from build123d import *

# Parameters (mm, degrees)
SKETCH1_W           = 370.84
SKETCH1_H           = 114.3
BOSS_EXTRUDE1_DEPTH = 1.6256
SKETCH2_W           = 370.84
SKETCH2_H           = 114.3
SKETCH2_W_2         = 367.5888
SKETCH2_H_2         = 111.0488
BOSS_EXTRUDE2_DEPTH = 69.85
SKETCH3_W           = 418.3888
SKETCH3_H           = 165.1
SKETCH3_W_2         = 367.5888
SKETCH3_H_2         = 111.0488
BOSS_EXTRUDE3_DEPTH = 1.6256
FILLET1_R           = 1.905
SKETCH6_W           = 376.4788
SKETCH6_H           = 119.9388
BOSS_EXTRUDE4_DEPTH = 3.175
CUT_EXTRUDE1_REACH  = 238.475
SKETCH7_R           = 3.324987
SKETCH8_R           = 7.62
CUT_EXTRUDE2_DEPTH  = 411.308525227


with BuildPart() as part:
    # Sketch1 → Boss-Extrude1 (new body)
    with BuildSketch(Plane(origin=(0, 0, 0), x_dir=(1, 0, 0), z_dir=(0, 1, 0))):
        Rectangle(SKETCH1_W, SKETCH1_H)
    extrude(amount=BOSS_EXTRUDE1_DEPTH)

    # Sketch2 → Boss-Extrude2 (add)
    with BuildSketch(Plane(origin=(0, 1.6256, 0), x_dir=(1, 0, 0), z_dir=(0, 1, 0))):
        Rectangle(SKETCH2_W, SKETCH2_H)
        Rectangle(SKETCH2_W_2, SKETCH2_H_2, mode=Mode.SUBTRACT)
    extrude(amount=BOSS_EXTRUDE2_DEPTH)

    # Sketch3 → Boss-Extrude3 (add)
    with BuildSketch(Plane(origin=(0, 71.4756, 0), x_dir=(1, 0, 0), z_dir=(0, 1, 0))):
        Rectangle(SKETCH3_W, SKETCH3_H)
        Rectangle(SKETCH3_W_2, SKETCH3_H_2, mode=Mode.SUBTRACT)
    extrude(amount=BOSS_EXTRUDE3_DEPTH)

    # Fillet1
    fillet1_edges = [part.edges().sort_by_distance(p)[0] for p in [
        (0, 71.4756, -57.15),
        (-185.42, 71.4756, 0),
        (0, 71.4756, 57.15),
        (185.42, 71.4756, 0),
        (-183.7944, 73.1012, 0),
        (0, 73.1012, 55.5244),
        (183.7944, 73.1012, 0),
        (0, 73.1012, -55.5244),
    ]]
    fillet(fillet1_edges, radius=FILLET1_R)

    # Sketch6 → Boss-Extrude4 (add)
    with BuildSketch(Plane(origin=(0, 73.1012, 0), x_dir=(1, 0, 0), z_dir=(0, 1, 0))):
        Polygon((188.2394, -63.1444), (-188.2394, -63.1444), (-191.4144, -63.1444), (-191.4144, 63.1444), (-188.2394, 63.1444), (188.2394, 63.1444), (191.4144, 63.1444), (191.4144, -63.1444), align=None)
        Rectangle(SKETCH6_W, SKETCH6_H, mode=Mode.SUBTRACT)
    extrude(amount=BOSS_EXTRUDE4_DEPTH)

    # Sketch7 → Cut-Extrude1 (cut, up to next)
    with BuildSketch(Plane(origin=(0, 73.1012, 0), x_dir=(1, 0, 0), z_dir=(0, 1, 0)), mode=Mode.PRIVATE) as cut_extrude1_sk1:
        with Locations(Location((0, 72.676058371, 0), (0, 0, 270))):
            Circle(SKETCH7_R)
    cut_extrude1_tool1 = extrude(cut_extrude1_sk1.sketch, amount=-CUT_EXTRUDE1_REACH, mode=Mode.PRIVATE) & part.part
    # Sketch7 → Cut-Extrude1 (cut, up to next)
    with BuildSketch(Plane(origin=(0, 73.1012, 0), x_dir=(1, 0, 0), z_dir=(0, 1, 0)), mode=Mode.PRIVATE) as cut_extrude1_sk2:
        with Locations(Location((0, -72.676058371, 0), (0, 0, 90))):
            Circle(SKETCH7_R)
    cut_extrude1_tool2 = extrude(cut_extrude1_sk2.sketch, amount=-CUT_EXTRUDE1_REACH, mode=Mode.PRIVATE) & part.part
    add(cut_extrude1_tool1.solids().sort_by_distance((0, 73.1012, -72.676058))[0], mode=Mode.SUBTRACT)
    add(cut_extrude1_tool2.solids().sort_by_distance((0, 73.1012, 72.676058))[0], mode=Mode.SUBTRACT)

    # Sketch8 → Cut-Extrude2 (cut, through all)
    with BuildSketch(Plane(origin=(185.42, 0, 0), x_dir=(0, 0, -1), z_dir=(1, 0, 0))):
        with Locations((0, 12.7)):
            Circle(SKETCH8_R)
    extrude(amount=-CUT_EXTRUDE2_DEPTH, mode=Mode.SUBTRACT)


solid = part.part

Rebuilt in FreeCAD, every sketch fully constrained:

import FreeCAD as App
import Part
import Sketcher
from FreeCAD import Vector
Q = App.Units.Quantity


def edges_at(feature, points):
    """Names of the edges that pass closest to the given points."""
    edges = feature.Shape.Edges
    near = lambda p: min(range(len(edges)), key=lambda i: edges[i].distToShape(Part.Vertex(*p))[0])
    return sorted({f"Edge{near(p) + 1}" for p in points})


def add_polygon(sketch, points):
    """Adds a closed chain of lines whose ends are joined by coincident constraints."""
    first, n = sketch.GeometryCount, len(points)
    for a, b in zip(points, points[1:] + points[:1]):
        sketch.addGeometry(Part.LineSegment(App.Vector(*a, 0), App.Vector(*b, 0)), False)
    for i in range(n):
        sketch.addConstraint(Sketcher.Constraint("Coincident", first + i, 2, first + (i + 1) % n, 1))

doc = App.newDocument("Part")
params = doc.addObject("Spreadsheet::Sheet", "Params")
for row, (alias, value) in enumerate([
    ("sketch1_width", "14.6 in"),
    ("sketch1_height", "4.5 in"),
    ("pad1_length", "0.064 in"),
    ("sketch2_width", "14.6 in"),
    ("sketch2_height", "4.5 in"),
    ("sketch2_width2", "14.472 in"),
    ("sketch2_height2", "4.372 in"),
    ("pad2_length", "2.75 in"),
    ("sketch3_height", "6.5 in"),
    ("sketch3_width", "16.472 in"),
    ("sketch3_height2", "4.372 in"),
    ("pad3_length", "0.064 in"),
    ("fillet_radius", "0.075 in"),
    ("sketch4_width", "15.072 in"),
    ("sketch4_width2", "14.822 in"),
    ("sketch4_height", "4.972 in"),
    ("sketch4_height2", "4.722 in"),
    ("pad4_length", "0.125 in"),
    ("sketch7_diameter", "0.6 in"),
], start=1):
    params.set(f"A{row}", alias)
    params.set(f"B{row}", "=" + value)
    params.setAlias(f"B{row}", alias)

body = doc.addObject("PartDesign::Body", "Body")

sketch1 = doc.addObject("Sketcher::SketchObject", "Sketch")
body.addObject(sketch1)
sketch1.AttachmentSupport = (doc.XZ_Plane, [""])
sketch1.MapMode = "FlatFace"
add_polygon(sketch1, [(-185, -57), (-185, 57), (185, 57), (185, -57)])
sketch1.addConstraint([
    Sketcher.Constraint("Vertical", 0),
    Sketcher.Constraint("Horizontal", 1),
    Sketcher.Constraint("Vertical", 2),
    Sketcher.Constraint("Horizontal", 3),
    Sketcher.Constraint("Symmetric", 0, 2, 2, 2, -1, 1),
    Sketcher.Constraint("DistanceX", 1, 1, 1, 2, Q("14.6 in")),
    Sketcher.Constraint("DistanceY", 0, 1, 0, 2, Q("4.5 in")),
])
sketch1.setExpression("Constraints[9]", "Params.sketch1_width")
sketch1.setExpression("Constraints[10]", "Params.sketch1_height")
pad1 = doc.addObject("PartDesign::Pad", "Pad")
body.addObject(pad1)
pad1.Profile = sketch1
pad1.setExpression("Length", "Params.pad1_length")
pad1.Reversed = True

sketch2 = doc.addObject("Sketcher::SketchObject", "Sketch001")
body.addObject(sketch2)
sketch2.AttachmentSupport = (doc.XZ_Plane, [""])
sketch2.MapMode = "FlatFace"
sketch2.AttachmentOffset = App.Placement(Vector(0, 0, -0.064 * 25.4), App.Rotation())
add_polygon(sketch2, [(-185, -57), (-185, 57), (185, 57), (185, -57)])
add_polygon(sketch2, [(184, 56), (-184, 56), (-184, -56), (184, -56)])
sketch2.addConstraint([
    Sketcher.Constraint("Vertical", 0),
    Sketcher.Constraint("Horizontal", 1),
    Sketcher.Constraint("Vertical", 2),
    Sketcher.Constraint("Horizontal", 3),
    Sketcher.Constraint("Horizontal", 4),
    Sketcher.Constraint("Vertical", 5),
    Sketcher.Constraint("Horizontal", 6),
    Sketcher.Constraint("Vertical", 7),
    Sketcher.Constraint("Symmetric", 0, 2, 2, 2, -1, 1),
    Sketcher.Constraint("Symmetric", 4, 2, 6, 2, -1, 1),
    Sketcher.Constraint("DistanceX", 1, 1, 1, 2, Q("14.6 in")),
    Sketcher.Constraint("DistanceY", 0, 1, 0, 2, Q("4.5 in")),
    Sketcher.Constraint("DistanceX", 4, 2, 4, 1, Q("14.472 in")),
    Sketcher.Constraint("DistanceY", 5, 2, 5, 1, Q("4.372 in")),
])
sketch2.setExpression("Constraints[18]", "Params.sketch2_width")
sketch2.setExpression("Constraints[19]", "Params.sketch2_height")
sketch2.setExpression("Constraints[20]", "Params.sketch2_width2")
sketch2.setExpression("Constraints[21]", "Params.sketch2_height2")
pad2 = doc.addObject("PartDesign::Pad", "Pad001")
body.addObject(pad2)
pad2.Profile = sketch2
pad2.setExpression("Length", "Params.pad2_length")
pad2.Reversed = True

sketch3 = doc.addObject("Sketcher::SketchObject", "Sketch002")
body.addObject(sketch3)
sketch3.AttachmentSupport = (doc.XZ_Plane, [""])
sketch3.MapMode = "FlatFace"
sketch3.AttachmentOffset = App.Placement(Vector(0, 0, -2.814 * 25.4), App.Rotation())
add_polygon(sketch3, [(-209, -83), (-209, 83), (209, 83), (209, -83)])
add_polygon(sketch3, [(184, 56), (-184, 56), (-184, -56), (184, -56)])
sketch3.addConstraint([
    Sketcher.Constraint("Vertical", 0),
    Sketcher.Constraint("Horizontal", 1),
    Sketcher.Constraint("Vertical", 2),
    Sketcher.Constraint("Horizontal", 3),
    Sketcher.Constraint("Horizontal", 4),
    Sketcher.Constraint("Vertical", 5),
    Sketcher.Constraint("Horizontal", 6),
    Sketcher.Constraint("Vertical", 7),
    Sketcher.Constraint("Symmetric", 0, 2, 2, 2, -1, 1),
    Sketcher.Constraint("Symmetric", 4, 2, 6, 2, -1, 1),
    Sketcher.Constraint("DistanceY", 0, 1, 0, 2, Q("6.5 in")),
    Sketcher.Constraint("DistanceX", 0, 2, 4, 2, Q("1 in")),
    Sketcher.Constraint("DistanceX", 1, 1, 1, 2, Q("16.472 in")),
    Sketcher.Constraint("DistanceY", 5, 2, 5, 1, Q("4.372 in")),
])
sketch3.setExpression("Constraints[18]", "Params.sketch3_height")
sketch3.setExpression("Constraints[20]", "Params.sketch3_width")
sketch3.setExpression("Constraints[21]", "Params.sketch3_height2")
pad3 = doc.addObject("PartDesign::Pad", "Pad002")
body.addObject(pad3)
pad3.Profile = sketch3
pad3.setExpression("Length", "Params.pad3_length")
pad3.Reversed = True
doc.recompute()

fillet = doc.addObject("PartDesign::Fillet", "Fillet")
body.addObject(fillet)
fillet.Base = (pad3, edges_at(pad3, [
    (0, 71.476, -57.15),
    (-185.42, 71.476, 0),
    (0, 71.476, 57.15),
    (185.42, 71.476, 0),
    (-183.794, 73.101, 0),
    (0, 73.101, 55.524),
    (183.794, 73.101, 0),
    (0, 73.101, -55.524),
]))
fillet.setExpression("Radius", "Params.fillet_radius")

sketch4 = doc.addObject("Sketcher::SketchObject", "Sketch003")
body.addObject(sketch4)
sketch4.AttachmentSupport = (doc.XZ_Plane, [""])
sketch4.MapMode = "FlatFace"
sketch4.AttachmentOffset = App.Placement(Vector(0, 0, -2.878 * 25.4), App.Rotation())
add_polygon(sketch4, [(-191, 63), (191, 63), (191, -63), (-191, -63)])
add_polygon(sketch4, [(-188, 60), (-188, -60), (188, -60), (188, 60)])
sketch4.addConstraint([
    Sketcher.Constraint("Horizontal", 0),
    Sketcher.Constraint("Vertical", 1),
    Sketcher.Constraint("Horizontal", 2),
    Sketcher.Constraint("Vertical", 3),
    Sketcher.Constraint("Vertical", 4),
    Sketcher.Constraint("Horizontal", 5),
    Sketcher.Constraint("Vertical", 6),
    Sketcher.Constraint("Horizontal", 7),
    Sketcher.Constraint("Symmetric", 0, 2, 2, 2, -1, 1),
    Sketcher.Constraint("Symmetric", 4, 2, 6, 2, -1, 1),
    Sketcher.Constraint("DistanceX", 0, 1, 0, 2, Q("15.072 in")),
    Sketcher.Constraint("DistanceX", 5, 1, 5, 2, Q("14.822 in")),
    Sketcher.Constraint("DistanceY", 1, 2, 1, 1, Q("4.972 in")),
    Sketcher.Constraint("DistanceY", 4, 2, 4, 1, Q("4.722 in")),
])
sketch4.setExpression("Constraints[18]", "Params.sketch4_width")
sketch4.setExpression("Constraints[19]", "Params.sketch4_width2")
sketch4.setExpression("Constraints[20]", "Params.sketch4_height")
sketch4.setExpression("Constraints[21]", "Params.sketch4_height2")
pad4 = doc.addObject("PartDesign::Pad", "Pad003")
body.addObject(pad4)
pad4.Profile = sketch4
pad4.setExpression("Length", "Params.pad4_length")
pad4.Reversed = True

sketch5 = doc.addObject("Sketcher::SketchObject", "Sketch004")
body.addObject(sketch5)
sketch5.AttachmentSupport = (doc.XZ_Plane, [""])
sketch5.MapMode = "FlatFace"
sketch5.AttachmentOffset = App.Placement(Vector(0, 0, -2.878 * 25.4), App.Rotation())
sketch5.addGeometry(Part.Circle(Vector(0, -72.7, 0), Vector(0, 0, 1), 3.3), False)
sketch5.addConstraint([
    Sketcher.Constraint("PointOnObject", 0, 3, -2),
    Sketcher.Constraint("Diameter", 0, Q("6.649974 mm")),
    Sketcher.Constraint("DistanceY", 0, 3, -1, 1, Q("72.676058 mm")),
])
pocket1 = doc.addObject("PartDesign::Pocket", "Pocket")
body.addObject(pocket1)
pocket1.Profile = sketch5
pocket1.Type = "UpToFirst"
pocket1.Reversed = True

sketch6 = doc.addObject("Sketcher::SketchObject", "Sketch005")
body.addObject(sketch6)
sketch6.AttachmentSupport = (doc.XZ_Plane, [""])
sketch6.MapMode = "FlatFace"
sketch6.AttachmentOffset = App.Placement(Vector(0, 0, -2.878 * 25.4), App.Rotation())
sketch6.addGeometry(Part.Circle(Vector(0, 72.7, 0), Vector(0, 0, 1), 3.3), False)
sketch6.addConstraint([
    Sketcher.Constraint("PointOnObject", 0, 3, -2),
    Sketcher.Constraint("Diameter", 0, Q("6.649974 mm")),
    Sketcher.Constraint("DistanceY", -1, 1, 0, 3, Q("72.676058 mm")),
])
pocket2 = doc.addObject("PartDesign::Pocket", "Pocket001")
body.addObject(pocket2)
pocket2.Profile = sketch6
pocket2.Type = "UpToFirst"
pocket2.Reversed = True

sketch7 = doc.addObject("Sketcher::SketchObject", "Sketch006")
body.addObject(sketch7)
sketch7.AttachmentSupport = (doc.YZ_Plane, [""])
sketch7.MapMode = "FlatFace"
sketch7.AttachmentOffset = App.Placement(Vector(0, 0, 7.3 * 25.4), App.Rotation())
sketch7.addGeometry(Part.Circle(Vector(13, 0, 0), Vector(0, 0, 1), 8), False)
sketch7.addConstraint([
    Sketcher.Constraint("PointOnObject", 0, 3, -1),
    Sketcher.Constraint("Diameter", 0, Q("0.6 in")),
    Sketcher.Constraint("DistanceX", -1, 1, 0, 3, Q("0.5 in")),
])
sketch7.setExpression("Constraints[1]", "Params.sketch7_diameter")
pocket3 = doc.addObject("PartDesign::Pocket", "Pocket002")
body.addObject(pocket3)
pocket3.Profile = sketch7
pocket3.Type = "ThroughAll"

doc.recompute()
